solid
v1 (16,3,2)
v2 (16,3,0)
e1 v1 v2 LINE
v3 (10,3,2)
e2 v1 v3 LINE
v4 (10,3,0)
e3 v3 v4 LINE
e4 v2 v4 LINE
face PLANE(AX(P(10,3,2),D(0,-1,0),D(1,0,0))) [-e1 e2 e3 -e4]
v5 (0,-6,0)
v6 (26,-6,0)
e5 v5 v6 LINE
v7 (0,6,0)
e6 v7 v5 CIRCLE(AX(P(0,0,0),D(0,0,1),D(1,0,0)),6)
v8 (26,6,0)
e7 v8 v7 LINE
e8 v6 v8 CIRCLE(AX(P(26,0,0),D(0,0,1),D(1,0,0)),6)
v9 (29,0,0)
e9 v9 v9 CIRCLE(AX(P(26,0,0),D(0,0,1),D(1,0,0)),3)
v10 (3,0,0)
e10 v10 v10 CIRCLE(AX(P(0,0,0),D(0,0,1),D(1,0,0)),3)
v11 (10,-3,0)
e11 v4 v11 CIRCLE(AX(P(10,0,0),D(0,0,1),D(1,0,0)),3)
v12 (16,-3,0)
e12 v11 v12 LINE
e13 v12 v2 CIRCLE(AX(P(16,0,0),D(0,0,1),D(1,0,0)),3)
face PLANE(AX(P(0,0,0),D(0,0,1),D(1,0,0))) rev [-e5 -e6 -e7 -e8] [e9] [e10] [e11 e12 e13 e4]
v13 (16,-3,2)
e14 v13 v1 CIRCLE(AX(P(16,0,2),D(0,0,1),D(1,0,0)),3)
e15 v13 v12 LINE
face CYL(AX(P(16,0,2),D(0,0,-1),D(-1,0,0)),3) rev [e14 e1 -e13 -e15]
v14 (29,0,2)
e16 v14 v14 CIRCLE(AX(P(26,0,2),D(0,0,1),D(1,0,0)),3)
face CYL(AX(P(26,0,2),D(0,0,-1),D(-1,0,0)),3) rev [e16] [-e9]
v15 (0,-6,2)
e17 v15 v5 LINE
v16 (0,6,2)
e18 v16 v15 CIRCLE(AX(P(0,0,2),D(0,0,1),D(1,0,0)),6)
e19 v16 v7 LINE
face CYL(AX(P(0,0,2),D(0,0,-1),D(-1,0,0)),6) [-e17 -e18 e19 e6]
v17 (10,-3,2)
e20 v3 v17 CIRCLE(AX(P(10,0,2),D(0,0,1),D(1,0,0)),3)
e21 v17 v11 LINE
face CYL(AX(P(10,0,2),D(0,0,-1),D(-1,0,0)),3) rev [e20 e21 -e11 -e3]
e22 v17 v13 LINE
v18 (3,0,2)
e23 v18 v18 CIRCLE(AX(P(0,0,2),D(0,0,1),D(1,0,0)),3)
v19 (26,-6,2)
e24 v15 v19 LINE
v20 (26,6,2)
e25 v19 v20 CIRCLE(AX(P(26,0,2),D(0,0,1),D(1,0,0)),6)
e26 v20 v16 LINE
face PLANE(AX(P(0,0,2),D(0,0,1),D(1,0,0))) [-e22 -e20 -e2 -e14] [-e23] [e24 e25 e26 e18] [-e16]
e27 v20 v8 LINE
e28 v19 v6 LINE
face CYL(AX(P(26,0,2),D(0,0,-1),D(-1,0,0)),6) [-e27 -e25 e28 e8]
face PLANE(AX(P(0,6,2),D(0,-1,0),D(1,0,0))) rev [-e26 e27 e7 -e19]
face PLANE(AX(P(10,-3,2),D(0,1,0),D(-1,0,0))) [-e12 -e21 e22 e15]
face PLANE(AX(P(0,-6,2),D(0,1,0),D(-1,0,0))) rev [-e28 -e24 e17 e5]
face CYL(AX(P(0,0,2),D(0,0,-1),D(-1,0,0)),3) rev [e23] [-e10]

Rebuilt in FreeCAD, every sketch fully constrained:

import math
import FreeCAD as App
import Part
import Sketcher

V = App.Vector
Q = App.Units.Quantity

doc = App.newDocument("Part")
params = doc.addObject("Spreadsheet::Sheet", "Params")
for row, (alias, value) in enumerate([
    ("sketch1_diameter", "6 mm"),
    ("sketch1_radius", "6 mm"),
    ("sketch1_width", "26 mm"),
    ("sketch1_width2", "6 mm"),
    ("pad1_length", "2 mm"),
], start=1):
    params.set(f"A{row}", alias)
    params.set(f"B{row}", "=" + value)
    params.setAlias(f"B{row}", alias)

body = doc.addObject("PartDesign::Body", "Body")

# Sketch on XY plane
sketch1 = doc.addObject("Sketcher::SketchObject", "Sketch")
body.addObject(sketch1)
sketch1.AttachmentSupport = (doc.XY_Plane, [""])
sketch1.MapMode = "FlatFace"
sketch1.addGeometry([
    Part.LineSegment(V(26, 6, 0), V(0, 6, 0)),  # 0
    Part.ArcOfCircle(Part.Circle(V(0, 0, 0), V(0, 0, 1), 6), math.radians(90), math.radians(270)),  # 1
    Part.LineSegment(V(0, -6, 0), V(26, -6, 0)),  # 2
    Part.ArcOfCircle(Part.Circle(V(26, 0, 0), V(0, 0, 1), 6), math.radians(-90), math.radians(90)),  # 3
    Part.Circle(V(26, 0, 0), V(0, 0, 1), 3),  # 4
    Part.LineSegment(V(10, 3, 0), V(16, 3, 0)),  # 5
    Part.ArcOfCircle(Part.Circle(V(16, 0, 0), V(0, 0, 1), 3), math.radians(-90), math.radians(90)),  # 6
    Part.LineSegment(V(16, -3, 0), V(10, -3, 0)),  # 7
    Part.ArcOfCircle(Part.Circle(V(10, 0, 0), V(0, 0, 1), 3), math.radians(90), math.radians(270)),  # 8
    Part.Circle(V(0, 0, 0), V(0, 0, 1), 3),  # 9
], False)
sketch1.addConstraint([
    Sketcher.Constraint("Tangent", 0, 2, 1, 1),
    Sketcher.Constraint("Tangent", 1, 2, 2, 1),
    Sketcher.Constraint("Tangent", 2, 2, 3, 1),
    Sketcher.Constraint("Tangent", 3, 2, 0, 1),
    Sketcher.Constraint("Tangent", 5, 2, 6, 2),
    Sketcher.Constraint("Tangent", 6, 1, 7, 1),
    Sketcher.Constraint("Tangent", 7, 2, 8, 2),
    Sketcher.Constraint("Tangent", 8, 1, 5, 1),
    Sketcher.Constraint("Horizontal", 0),
    Sketcher.Constraint("Horizontal", 2),
    Sketcher.Constraint("Horizontal", 5),
    Sketcher.Constraint("Horizontal", 7),
    Sketcher.Constraint("Coincident", 1, 3, -1, 1),
    Sketcher.Constraint("Coincident", 9, 3, -1, 1),
    Sketcher.Constraint("Coincident", 4, 3, 3, 3),
    Sketcher.Constraint("Equal", 4, 6),
    Sketcher.Constraint("Equal", 8, 9),
    Sketcher.Constraint("PointOnObject", 6, 3, -1),
    Sketcher.Constraint("Diameter", 4, Q("6 mm")),
    Sketcher.Constraint("Radius", 1, Q("6 mm")),
    Sketcher.Constraint("DistanceX", 0, 2, 0, 1, Q("26 mm")),
    Sketcher.Constraint("DistanceX", 5, 1, 5, 2, Q("6 mm")),
    Sketcher.Constraint("DistanceX", -1, 1, 6, 3, Q("16 mm")),
])
sketch1.setExpression("Constraints[18]", "Params.sketch1_diameter")
sketch1.setExpression("Constraints[19]", "Params.sketch1_radius")
sketch1.setExpression("Constraints[20]", "Params.sketch1_width")
sketch1.setExpression("Constraints[21]", "Params.sketch1_width2")
pad1 = doc.addObject("PartDesign::Pad", "Pad")
body.addObject(pad1)
pad1.Profile = sketch1
pad1.setExpression("Length", "Params.pad1_length")

doc.recompute()
